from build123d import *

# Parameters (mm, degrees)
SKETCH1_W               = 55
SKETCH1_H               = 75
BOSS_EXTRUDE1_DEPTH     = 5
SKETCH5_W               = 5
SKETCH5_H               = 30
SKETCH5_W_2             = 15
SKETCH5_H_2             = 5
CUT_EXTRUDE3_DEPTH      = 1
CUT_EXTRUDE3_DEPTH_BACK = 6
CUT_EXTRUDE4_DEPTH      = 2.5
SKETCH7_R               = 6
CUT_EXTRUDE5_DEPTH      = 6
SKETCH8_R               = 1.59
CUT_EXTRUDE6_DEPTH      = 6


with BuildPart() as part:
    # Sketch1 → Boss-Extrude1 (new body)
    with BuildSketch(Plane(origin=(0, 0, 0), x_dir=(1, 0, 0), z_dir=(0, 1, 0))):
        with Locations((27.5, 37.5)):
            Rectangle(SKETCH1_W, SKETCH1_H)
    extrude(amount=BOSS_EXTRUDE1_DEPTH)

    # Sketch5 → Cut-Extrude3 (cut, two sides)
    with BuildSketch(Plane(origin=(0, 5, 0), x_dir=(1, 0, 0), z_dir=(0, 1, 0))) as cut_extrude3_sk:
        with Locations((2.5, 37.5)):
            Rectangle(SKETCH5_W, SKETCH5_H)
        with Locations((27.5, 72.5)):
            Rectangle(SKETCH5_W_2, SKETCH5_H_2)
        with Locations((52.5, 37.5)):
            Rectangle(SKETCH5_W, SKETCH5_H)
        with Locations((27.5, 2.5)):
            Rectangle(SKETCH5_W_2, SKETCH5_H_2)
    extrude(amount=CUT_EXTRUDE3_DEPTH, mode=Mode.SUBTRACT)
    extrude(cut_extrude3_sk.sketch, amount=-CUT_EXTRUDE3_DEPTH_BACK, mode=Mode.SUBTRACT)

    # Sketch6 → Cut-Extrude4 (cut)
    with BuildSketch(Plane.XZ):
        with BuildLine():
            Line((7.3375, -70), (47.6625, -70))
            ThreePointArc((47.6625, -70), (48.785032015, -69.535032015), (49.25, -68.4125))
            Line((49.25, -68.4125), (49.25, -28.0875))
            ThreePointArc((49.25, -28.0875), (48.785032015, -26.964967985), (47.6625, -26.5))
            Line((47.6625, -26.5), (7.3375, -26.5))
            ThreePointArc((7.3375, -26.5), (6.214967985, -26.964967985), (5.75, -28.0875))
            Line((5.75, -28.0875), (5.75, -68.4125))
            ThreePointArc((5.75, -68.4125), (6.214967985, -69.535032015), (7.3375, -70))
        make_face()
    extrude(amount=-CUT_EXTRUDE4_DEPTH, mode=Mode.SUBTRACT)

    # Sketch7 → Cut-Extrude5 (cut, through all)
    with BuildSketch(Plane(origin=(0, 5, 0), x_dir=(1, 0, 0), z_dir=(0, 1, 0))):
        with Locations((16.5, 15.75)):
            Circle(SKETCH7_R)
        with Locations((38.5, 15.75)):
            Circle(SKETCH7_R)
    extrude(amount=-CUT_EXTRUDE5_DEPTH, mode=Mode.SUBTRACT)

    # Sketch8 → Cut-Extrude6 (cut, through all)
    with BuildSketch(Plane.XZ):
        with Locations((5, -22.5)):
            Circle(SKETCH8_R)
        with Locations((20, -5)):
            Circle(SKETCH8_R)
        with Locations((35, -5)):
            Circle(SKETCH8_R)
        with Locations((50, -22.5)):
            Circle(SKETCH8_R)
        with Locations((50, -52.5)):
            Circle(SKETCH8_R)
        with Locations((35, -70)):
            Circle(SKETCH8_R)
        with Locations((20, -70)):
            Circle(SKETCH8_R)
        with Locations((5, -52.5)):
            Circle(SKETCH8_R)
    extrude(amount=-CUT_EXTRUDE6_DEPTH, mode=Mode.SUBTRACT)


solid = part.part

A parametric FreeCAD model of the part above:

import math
import FreeCAD as App
import Part
import Sketcher
from FreeCAD import Vector

doc = App.newDocument("Part")
body = doc.addObject("PartDesign::Body", "Body")

# Sketch on XZ plane
sketch1 = doc.addObject("Sketcher::SketchObject", "Sketch")
body.addObject(sketch1)
sketch1.AttachmentSupport = (doc.XZ_Plane, [""])
sketch1.MapMode = "FlatFace"
sketch1.addGeometry([
    Part.LineSegment(Vector(0, -75, 0), Vector(0, 0, 0)),
    Part.LineSegment(Vector(0, 0, 0), Vector(55, 0, 0)),
    Part.LineSegment(Vector(55, 0, 0), Vector(55, -75, 0)),
    Part.LineSegment(Vector(55, -75, 0), Vector(0, -75, 0)),
], False)
sketch1.addConstraint([
    Sketcher.Constraint("Coincident", 0, 2, 1, 1),
    Sketcher.Constraint("Coincident", 1, 2, 2, 1),
    Sketcher.Constraint("Coincident", 2, 2, 3, 1),
    Sketcher.Constraint("Coincident", 3, 2, 0, 1),
    Sketcher.Constraint("Vertical", 0),
    Sketcher.Constraint("Horizontal", 1),
    Sketcher.Constraint("Vertical", 2),
    Sketcher.Constraint("Horizontal", 3),
    Sketcher.Constraint("Coincident", 0, 2, -1, 1),
    Sketcher.Constraint("DistanceX", 1, 1, 1, 2, 55.0),
    Sketcher.Constraint("DistanceY", 0, 1, 0, 2, 75.0),
])
pad1 = doc.addObject("PartDesign::Pad", "Pad")
body.addObject(pad1)
pad1.Profile = sketch1
pad1.Length = 5
pad1.Reversed = True

# Sketch on XZ plane
sketch2 = doc.addObject("Sketcher::SketchObject", "Sketch001")
body.addObject(sketch2)
sketch2.AttachmentSupport = (doc.XZ_Plane, [""])
sketch2.MapMode = "FlatFace"
sketch2.AttachmentOffset = App.Placement(Vector(0, 0, -5), App.Rotation())
sketch2.addGeometry([
    Part.LineSegment(Vector(0, -52, 0), Vector(0, -22, 0)),  # 0
    Part.LineSegment(Vector(0, -22, 0), Vector(5, -22, 0)),  # 1
    Part.LineSegment(Vector(5, -22, 0), Vector(5, -52, 0)),  # 2
    Part.LineSegment(Vector(5, -52, 0), Vector(0, -52, 0)),  # 3
    Part.LineSegment(Vector(20, -75, 0), Vector(20, -70, 0)),  # 4
    Part.LineSegment(Vector(20, -70, 0), Vector(35, -70, 0)),  # 5
    Part.LineSegment(Vector(35, -70, 0), Vector(35, -75, 0)),  # 6
    Part.LineSegment(Vector(35, -75, 0), Vector(20, -75, 0)),  # 7
    Part.LineSegment(Vector(50, -52, 0), Vector(50, -22, 0)),  # 8
    Part.LineSegment(Vector(50, -22, 0), Vector(55, -22, 0)),  # 9
    Part.LineSegment(Vector(55, -22, 0), Vector(55, -52, 0)),  # 10
    Part.LineSegment(Vector(55, -52, 0), Vector(50, -52, 0)),  # 11
    Part.LineSegment(Vector(20, -5, 0), Vector(20, 0, 0)),  # 12
    Part.LineSegment(Vector(20, 0, 0), Vector(35, 0, 0)),  # 13
    Part.LineSegment(Vector(35, 0, 0), Vector(35, -5, 0)),  # 14
    Part.LineSegment(Vector(35, -5, 0), Vector(20, -5, 0)),  # 15
], False)
sketch2.addConstraint([
    Sketcher.Constraint("Coincident", 0, 2, 1, 1),
    Sketcher.Constraint("Coincident", 1, 2, 2, 1),
    Sketcher.Constraint("Coincident", 2, 2, 3, 1),
    Sketcher.Constraint("Coincident", 3, 2, 0, 1),
    Sketcher.Constraint("Coincident", 4, 2, 5, 1),
    Sketcher.Constraint("Coincident", 5, 2, 6, 1),
    Sketcher.Constraint("Coincident", 6, 2, 7, 1),
    Sketcher.Constraint("Coincident", 7, 2, 4, 1),
    Sketcher.Constraint("Coincident", 8, 2, 9, 1),
    Sketcher.Constraint("Coincident", 9, 2, 10, 1),
    Sketcher.Constraint("Coincident", 10, 2, 11, 1),
    Sketcher.Constraint("Coincident", 11, 2, 8, 1),
    Sketcher.Constraint("Coincident", 12, 2, 13, 1),
    Sketcher.Constraint("Coincident", 13, 2, 14, 1),
    Sketcher.Constraint("Coincident", 14, 2, 15, 1),
    Sketcher.Constraint("Coincident", 15, 2, 12, 1),
    Sketcher.Constraint("Vertical", 0),
    Sketcher.Constraint("Horizontal", 1),
    Sketcher.Constraint("Vertical", 2),
    Sketcher.Constraint("Horizontal", 3),
    Sketcher.Constraint("Vertical", 4),
    Sketcher.Constraint("Horizontal", 5),
    Sketcher.Constraint("Vertical", 6),
    Sketcher.Constraint("Horizontal", 7),
    Sketcher.Constraint("Vertical", 8),
    Sketcher.Constraint("Horizontal", 9),
    Sketcher.Constraint("Vertical", 10),
    Sketcher.Constraint("Horizontal", 11),
    Sketcher.Constraint("Vertical", 12),
    Sketcher.Constraint("Horizontal", 13),
    Sketcher.Constraint("Vertical", 14),
    Sketcher.Constraint("Horizontal", 15),
    Sketcher.Constraint("PointOnObject", 0, 2, -2),
    Sketcher.Constraint("PointOnObject", 12, 2, -1),
    Sketcher.Constraint("Horizontal", 1, 2, 8, 2),
    Sketcher.Constraint("Horizontal", 3, 2, 10, 2),
    Sketcher.Constraint("Vertical", 7, 2, 12, 2),
    Sketcher.Constraint("Vertical", 6, 2, 13, 2),
    Sketcher.Constraint("Equal", 3, 9),
    Sketcher.Constraint("Equal", 11, 4),
    Sketcher.Constraint("Equal", 6, 12),
    Sketcher.Constraint("DistanceX", 1, 1, 1, 2, 5.0),
    Sketcher.Constraint("DistanceX", 5, 1, 5, 2, 15.0),
    Sketcher.Constraint("DistanceY", 0, 1, 0, 2, 30.0),
    Sketcher.Constraint("DistanceX", -1, 1, 4, 2, 20.0),
    Sketcher.Constraint("DistanceY", 4, 2, -1, 1, 70.0),
    Sketcher.Constraint("DistanceX", -1, 1, 8, 2, 50.0),
    Sketcher.Constraint("DistanceY", 0, 2, -1, 1, 22.5),
])
pocket1 = doc.addObject("PartDesign::Pocket", "Pocket")
body.addObject(pocket1)
pocket1.Profile = sketch2
pocket1.Type = "ThroughAll"
pocket1.Midplane = True

# Sketch on XZ plane
sketch3 = doc.addObject("Sketcher::SketchObject", "Sketch002")
body.addObject(sketch3)
sketch3.AttachmentSupport = (doc.XZ_Plane, [""])
sketch3.MapMode = "FlatFace"
sketch3.addGeometry([
    Part.LineSegment(Vector(7.3, -70, 0), Vector(47.7, -70, 0)),  # 0
    Part.ArcOfCircle(Part.Circle(Vector(47.7, -68.4, 0), Vector(0, 0, 1), 1.6), math.radians(-90), math.radians(0)),  # 1
    Part.LineSegment(Vector(49.2, -68.4, 0), Vector(49.2, -28.1, 0)),  # 2
    Part.ArcOfCircle(Part.Circle(Vector(47.7, -28.1, 0), Vector(0, 0, 1), 1.6), math.radians(0), math.radians(90)),  # 3
    Part.LineSegment(Vector(47.7, -26.5, 0), Vector(7.3, -26.5, 0)),  # 4
    Part.ArcOfCircle(Part.Circle(Vector(7.3, -28.1, 0), Vector(0, 0, 1), 1.6), math.radians(90), math.radians(180)),  # 5
    Part.LineSegment(Vector(5.8, -28.1, 0), Vector(5.8, -68.4, 0)),  # 6
    Part.ArcOfCircle(Part.Circle(Vector(7.3, -68.4, 0), Vector(0, 0, 1), 1.6), math.radians(180), math.radians(270)),  # 7
], False)
sketch3.addConstraint([
    Sketcher.Constraint("Tangent", 0, 2, 1, 1),
    Sketcher.Constraint("Tangent", 1, 2, 2, 1),
    Sketcher.Constraint("Tangent", 2, 2, 3, 1),
    Sketcher.Constraint("Tangent", 3, 2, 4, 1),
    Sketcher.Constraint("Tangent", 4, 2, 5, 1),
    Sketcher.Constraint("Tangent", 5, 2, 6, 1),
    Sketcher.Constraint("Tangent", 6, 2, 7, 1),
    Sketcher.Constraint("Tangent", 7, 2, 0, 1),
    Sketcher.Constraint("Horizontal", 0),
    Sketcher.Constraint("Vertical", 2),
    Sketcher.Constraint("Horizontal", 4),
    Sketcher.Constraint("Vertical", 6),
    Sketcher.Constraint("Equal", 1, 3),
    Sketcher.Constraint("Equal", 3, 5),
    Sketcher.Constraint("Equal", 5, 7),
    Sketcher.Constraint("Equal", 4, 2),
    Sketcher.Constraint("DistanceY", 0, 2, -1, 1, 70.0),
    Sketcher.Constraint("DistanceY", 3, 2, -1, 1, 26.5),
    Sketcher.Constraint("Radius", 1, 1.5875),
    Sketcher.Constraint("DistanceX", -1, 1, 1, 2, 49.25),
])
pocket2 = doc.addObject("PartDesign::Pocket", "Pocket001")
body.addObject(pocket2)
pocket2.Profile = sketch3
pocket2.Length = 2.5

# Sketch on XZ plane
sketch4 = doc.addObject("Sketcher::SketchObject", "Sketch003")
body.addObject(sketch4)
sketch4.AttachmentSupport = (doc.XZ_Plane, [""])
sketch4.MapMode = "FlatFace"
sketch4.AttachmentOffset = App.Placement(Vector(0, 0, -5), App.Rotation())
sketch4.addGeometry([
    Part.Circle(Vector(16, -16, 0), Vector(0, 0, 1), 6),
    Part.Circle(Vector(38, -16, 0), Vector(0, 0, 1), 6),
], False)
sketch4.addConstraint([
    Sketcher.Constraint("Equal", 0, 1),
    Sketcher.Constraint("Horizontal", 0, 3, 1, 3),
    Sketcher.Constraint("Diameter", 0, 12.0),
    Sketcher.Constraint("DistanceX", 0, 3, 1, 3, 22.0),
    Sketcher.Constraint("DistanceX", -1, 1, 0, 3, 16.5),
    Sketcher.Constraint("DistanceY", 0, 3, -1, 1, 15.75),
])
pocket3 = doc.addObject("PartDesign::Pocket", "Pocket002")
body.addObject(pocket3)
pocket3.Profile = sketch4
pocket3.Type = "ThroughAll"
pocket3.Reversed = True

# Sketch on XZ plane
sketch5 = doc.addObject("Sketcher::SketchObject", "Sketch004")
body.addObject(sketch5)
sketch5.AttachmentSupport = (doc.XZ_Plane, [""])
sketch5.MapMode = "FlatFace"
sketch5.addGeometry([
    Part.Circle(Vector(5, -22.5, 0), Vector(0, 0, 1), 1.6),  # 0
    Part.Circle(Vector(20, -5, 0), Vector(0, 0, 1), 1.6),  # 1
    Part.Circle(Vector(35, -5, 0), Vector(0, 0, 1), 1.6),  # 2
    Part.Circle(Vector(50, -22.5, 0), Vector(0, 0, 1), 1.6),  # 3
    Part.Circle(Vector(50, -52.5, 0), Vector(0, 0, 1), 1.6),  # 4
    Part.Circle(Vector(35, -70, 0), Vector(0, 0, 1), 1.6),  # 5
    Part.Circle(Vector(20, -70, 0), Vector(0, 0, 1), 1.6),  # 6
    Part.Circle(Vector(5, -52.5, 0), Vector(0, 0, 1), 1.6),  # 7
], False)
sketch5.addConstraint([
    Sketcher.Constraint("Equal", 0, 1),
    Sketcher.Constraint("Equal", 1, 2),
    Sketcher.Constraint("Equal", 2, 3),
    Sketcher.Constraint("Equal", 3, 4),
    Sketcher.Constraint("Equal", 4, 5),
    Sketcher.Constraint("Equal", 5, 6),
    Sketcher.Constraint("Equal", 6, 7),
    Sketcher.Constraint("Horizontal", 1, 3, 2, 3),
    Sketcher.Constraint("Horizontal", 0, 3, 3, 3),
    Sketcher.Constraint("Horizontal", 5, 3, 6, 3),
    Sketcher.Constraint("Horizontal", 4, 3, 7, 3),
    Sketcher.Constraint("Vertical", 3, 3, 4, 3),
    Sketcher.Constraint("Vertical", 2, 3, 5, 3),
    Sketcher.Constraint("Vertical", 1, 3, 6, 3),
    Sketcher.Constraint("Vertical", 0, 3, 7, 3),
    Sketcher.Constraint("Diameter", 0, 3.18),
    Sketcher.Constraint("DistanceX", -1, 1, 0, 3, 5.0),
    Sketcher.Constraint("DistanceX", -1, 1, 1, 3, 20.0),
    Sketcher.Constraint("DistanceY", 1, 3, -1, 1, 5.0),
    Sketcher.Constraint("DistanceX", -1, 1, 2, 3, 35.0),
    Sketcher.Constraint("DistanceX", -1, 1, 3, 3, 50.0),
    Sketcher.Constraint("DistanceY", 5, 3, -1, 1, 70.0),
    Sketcher.Constraint("DistanceY", 4, 3, 3, 3, 30.0),
    Sketcher.Constraint("DistanceY", 0, 3, -1, 1, 22.5),
])
pocket4 = doc.addObject("PartDesign::Pocket", "Pocket003")
body.addObject(pocket4)
pocket4.Profile = sketch5
pocket4.Type = "ThroughAll"

doc.recompute()
